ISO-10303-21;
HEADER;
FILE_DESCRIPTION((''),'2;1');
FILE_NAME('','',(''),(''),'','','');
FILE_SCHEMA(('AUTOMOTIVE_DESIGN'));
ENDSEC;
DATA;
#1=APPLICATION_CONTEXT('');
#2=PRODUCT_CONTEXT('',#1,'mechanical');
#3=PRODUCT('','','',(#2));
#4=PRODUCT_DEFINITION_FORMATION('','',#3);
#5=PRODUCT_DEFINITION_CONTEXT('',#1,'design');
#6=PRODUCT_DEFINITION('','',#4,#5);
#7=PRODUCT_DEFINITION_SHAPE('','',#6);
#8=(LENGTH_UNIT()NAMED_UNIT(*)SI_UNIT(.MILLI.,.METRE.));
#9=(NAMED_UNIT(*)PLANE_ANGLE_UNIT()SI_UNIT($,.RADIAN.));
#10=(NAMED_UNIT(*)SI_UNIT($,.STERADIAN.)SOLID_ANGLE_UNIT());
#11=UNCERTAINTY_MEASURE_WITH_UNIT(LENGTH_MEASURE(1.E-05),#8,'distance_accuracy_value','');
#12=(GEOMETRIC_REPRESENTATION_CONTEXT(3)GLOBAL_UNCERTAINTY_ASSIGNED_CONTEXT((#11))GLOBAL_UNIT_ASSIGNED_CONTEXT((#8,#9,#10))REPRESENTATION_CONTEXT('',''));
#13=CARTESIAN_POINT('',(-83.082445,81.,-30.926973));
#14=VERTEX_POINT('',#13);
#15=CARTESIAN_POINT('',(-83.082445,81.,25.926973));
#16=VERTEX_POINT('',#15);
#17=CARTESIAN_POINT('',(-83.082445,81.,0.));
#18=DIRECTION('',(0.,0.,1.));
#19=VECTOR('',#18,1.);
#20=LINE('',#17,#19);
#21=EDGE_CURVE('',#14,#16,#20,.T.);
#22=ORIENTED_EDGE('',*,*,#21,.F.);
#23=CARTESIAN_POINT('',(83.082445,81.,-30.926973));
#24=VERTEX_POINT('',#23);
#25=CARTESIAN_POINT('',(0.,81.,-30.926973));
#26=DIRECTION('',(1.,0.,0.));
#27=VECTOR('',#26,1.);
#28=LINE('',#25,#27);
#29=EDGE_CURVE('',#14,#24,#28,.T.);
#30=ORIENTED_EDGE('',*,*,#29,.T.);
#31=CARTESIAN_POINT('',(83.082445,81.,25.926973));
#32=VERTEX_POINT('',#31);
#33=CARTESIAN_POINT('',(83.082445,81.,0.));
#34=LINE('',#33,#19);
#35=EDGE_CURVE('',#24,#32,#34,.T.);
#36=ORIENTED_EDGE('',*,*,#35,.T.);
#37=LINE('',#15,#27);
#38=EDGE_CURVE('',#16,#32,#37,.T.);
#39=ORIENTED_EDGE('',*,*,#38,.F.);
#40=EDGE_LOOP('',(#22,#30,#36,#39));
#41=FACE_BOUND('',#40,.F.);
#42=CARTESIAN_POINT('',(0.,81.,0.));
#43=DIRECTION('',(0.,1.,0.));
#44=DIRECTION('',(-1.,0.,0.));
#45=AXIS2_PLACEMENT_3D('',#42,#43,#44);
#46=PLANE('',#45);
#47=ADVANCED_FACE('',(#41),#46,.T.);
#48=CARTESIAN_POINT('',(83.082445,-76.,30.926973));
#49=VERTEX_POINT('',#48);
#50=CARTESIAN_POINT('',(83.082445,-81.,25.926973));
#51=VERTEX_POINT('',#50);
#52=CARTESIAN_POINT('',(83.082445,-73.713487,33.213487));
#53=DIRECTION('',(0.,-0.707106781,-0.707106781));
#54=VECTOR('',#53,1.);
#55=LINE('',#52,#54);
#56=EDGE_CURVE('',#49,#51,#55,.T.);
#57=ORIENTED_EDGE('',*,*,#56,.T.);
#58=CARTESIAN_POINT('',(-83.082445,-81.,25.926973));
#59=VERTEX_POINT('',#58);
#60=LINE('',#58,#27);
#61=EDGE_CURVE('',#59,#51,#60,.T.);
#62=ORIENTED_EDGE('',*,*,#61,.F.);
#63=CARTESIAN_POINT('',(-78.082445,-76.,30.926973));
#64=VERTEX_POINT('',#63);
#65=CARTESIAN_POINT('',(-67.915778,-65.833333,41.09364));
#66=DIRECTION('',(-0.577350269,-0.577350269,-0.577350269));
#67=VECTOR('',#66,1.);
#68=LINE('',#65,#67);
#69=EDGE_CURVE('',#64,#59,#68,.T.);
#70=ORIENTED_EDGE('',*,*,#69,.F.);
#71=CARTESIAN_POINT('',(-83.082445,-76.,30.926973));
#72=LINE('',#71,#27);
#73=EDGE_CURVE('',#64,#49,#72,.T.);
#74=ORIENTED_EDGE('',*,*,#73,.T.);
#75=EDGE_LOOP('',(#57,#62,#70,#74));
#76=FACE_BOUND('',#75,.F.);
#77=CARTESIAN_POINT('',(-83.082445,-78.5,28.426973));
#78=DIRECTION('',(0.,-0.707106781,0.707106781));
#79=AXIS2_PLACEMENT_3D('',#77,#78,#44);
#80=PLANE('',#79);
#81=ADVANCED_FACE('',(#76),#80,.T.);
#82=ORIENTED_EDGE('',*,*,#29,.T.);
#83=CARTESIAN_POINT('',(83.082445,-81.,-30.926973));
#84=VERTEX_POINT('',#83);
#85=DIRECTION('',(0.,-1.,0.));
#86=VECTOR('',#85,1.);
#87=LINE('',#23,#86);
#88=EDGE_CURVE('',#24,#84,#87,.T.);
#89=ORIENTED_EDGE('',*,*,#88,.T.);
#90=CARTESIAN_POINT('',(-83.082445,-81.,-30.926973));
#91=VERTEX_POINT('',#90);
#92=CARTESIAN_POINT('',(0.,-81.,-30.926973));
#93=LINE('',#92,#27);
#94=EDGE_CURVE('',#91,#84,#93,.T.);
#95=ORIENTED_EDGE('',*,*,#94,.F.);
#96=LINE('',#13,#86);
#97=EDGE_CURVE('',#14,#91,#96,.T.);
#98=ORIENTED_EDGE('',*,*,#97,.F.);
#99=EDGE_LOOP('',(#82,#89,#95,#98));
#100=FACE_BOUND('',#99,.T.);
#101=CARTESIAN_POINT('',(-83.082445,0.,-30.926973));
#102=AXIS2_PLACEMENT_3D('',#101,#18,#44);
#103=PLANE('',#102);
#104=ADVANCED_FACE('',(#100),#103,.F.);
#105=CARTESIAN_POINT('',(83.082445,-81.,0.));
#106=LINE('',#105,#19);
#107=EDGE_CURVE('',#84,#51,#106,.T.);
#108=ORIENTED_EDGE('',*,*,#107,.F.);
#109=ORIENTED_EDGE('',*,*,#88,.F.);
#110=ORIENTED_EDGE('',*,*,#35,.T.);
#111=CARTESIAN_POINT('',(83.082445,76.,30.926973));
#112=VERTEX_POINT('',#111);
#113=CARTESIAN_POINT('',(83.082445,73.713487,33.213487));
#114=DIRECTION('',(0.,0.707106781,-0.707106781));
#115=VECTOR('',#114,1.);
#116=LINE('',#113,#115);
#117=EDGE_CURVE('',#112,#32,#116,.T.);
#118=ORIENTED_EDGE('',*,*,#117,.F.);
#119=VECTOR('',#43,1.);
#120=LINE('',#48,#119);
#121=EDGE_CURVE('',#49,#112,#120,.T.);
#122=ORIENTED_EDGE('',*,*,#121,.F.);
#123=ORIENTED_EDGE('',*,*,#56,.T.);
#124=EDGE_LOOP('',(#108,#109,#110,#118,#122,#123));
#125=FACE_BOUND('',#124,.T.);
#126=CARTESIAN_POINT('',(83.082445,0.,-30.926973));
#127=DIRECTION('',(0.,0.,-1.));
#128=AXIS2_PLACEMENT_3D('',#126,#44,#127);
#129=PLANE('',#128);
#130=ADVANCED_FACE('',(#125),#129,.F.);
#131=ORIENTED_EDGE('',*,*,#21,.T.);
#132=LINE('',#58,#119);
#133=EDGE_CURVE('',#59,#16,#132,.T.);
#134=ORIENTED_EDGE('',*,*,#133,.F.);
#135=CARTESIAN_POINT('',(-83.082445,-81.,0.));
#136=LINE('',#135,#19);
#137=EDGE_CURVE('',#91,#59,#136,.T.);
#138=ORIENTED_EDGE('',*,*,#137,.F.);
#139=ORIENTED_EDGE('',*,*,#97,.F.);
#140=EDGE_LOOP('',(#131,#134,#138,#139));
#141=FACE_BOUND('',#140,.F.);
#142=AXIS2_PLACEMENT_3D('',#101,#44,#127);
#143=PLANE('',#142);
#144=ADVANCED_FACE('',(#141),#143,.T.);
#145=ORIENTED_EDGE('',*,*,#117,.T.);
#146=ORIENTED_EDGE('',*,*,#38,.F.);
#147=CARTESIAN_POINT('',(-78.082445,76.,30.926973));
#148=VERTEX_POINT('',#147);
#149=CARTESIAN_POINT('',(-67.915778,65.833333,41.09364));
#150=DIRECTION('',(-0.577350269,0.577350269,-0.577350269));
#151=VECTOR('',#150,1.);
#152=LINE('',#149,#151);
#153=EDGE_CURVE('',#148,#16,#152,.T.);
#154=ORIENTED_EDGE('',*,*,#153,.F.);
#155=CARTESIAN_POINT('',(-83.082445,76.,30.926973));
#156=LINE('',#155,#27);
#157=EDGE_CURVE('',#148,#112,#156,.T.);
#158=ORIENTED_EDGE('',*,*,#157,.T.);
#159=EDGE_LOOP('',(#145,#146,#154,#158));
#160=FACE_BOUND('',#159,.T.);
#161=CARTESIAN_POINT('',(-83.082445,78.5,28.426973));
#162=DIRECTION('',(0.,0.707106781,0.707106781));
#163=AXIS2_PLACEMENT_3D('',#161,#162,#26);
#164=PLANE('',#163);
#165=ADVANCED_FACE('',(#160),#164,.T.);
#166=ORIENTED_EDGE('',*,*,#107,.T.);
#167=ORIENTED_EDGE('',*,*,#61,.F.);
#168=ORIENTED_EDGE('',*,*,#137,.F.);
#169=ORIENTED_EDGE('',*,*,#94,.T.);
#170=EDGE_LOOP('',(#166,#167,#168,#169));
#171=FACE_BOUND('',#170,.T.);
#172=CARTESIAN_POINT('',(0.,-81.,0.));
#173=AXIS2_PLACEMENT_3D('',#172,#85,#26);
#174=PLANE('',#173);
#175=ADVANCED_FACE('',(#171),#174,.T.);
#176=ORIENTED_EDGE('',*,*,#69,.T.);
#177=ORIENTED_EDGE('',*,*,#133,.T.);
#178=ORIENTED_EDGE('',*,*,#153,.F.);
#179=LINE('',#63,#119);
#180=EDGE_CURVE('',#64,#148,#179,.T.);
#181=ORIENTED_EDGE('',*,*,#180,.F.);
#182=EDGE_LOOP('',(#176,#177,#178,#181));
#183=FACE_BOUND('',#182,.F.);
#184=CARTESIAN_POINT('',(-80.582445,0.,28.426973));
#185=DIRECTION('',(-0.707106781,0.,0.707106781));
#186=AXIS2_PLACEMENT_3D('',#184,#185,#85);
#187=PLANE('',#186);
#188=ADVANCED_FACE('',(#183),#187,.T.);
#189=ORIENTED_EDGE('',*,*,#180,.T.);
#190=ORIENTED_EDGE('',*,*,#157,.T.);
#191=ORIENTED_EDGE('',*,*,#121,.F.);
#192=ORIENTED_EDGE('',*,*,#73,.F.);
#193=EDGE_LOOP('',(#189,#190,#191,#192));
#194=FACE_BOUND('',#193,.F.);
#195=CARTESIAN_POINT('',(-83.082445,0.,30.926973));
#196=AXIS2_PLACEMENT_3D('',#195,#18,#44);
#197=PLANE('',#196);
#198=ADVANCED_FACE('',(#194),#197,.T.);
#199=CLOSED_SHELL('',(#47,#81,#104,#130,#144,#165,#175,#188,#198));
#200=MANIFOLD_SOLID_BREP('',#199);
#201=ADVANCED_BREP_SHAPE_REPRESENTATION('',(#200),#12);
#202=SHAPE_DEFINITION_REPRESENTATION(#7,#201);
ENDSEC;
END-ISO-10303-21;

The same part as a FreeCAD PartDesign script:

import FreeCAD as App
import Part
import Sketcher


def edges_at(feature, points):
    """Names of the edges that pass closest to the given points."""
    edges = feature.Shape.Edges
    near = lambda p: min(range(len(edges)), key=lambda i: edges[i].distToShape(Part.Vertex(*p))[0])
    return sorted({f"Edge{near(p) + 1}" for p in points})


def add_polygon(sketch, points):
    """Adds a closed chain of lines whose ends are joined by coincident constraints."""
    first, n = sketch.GeometryCount, len(points)
    for a, b in zip(points, points[1:] + points[:1]):
        sketch.addGeometry(Part.LineSegment(App.Vector(*a, 0), App.Vector(*b, 0)), False)
    for i in range(n):
        sketch.addConstraint(Sketcher.Constraint("Coincident", first + i, 2, first + (i + 1) % n, 1))

doc = App.newDocument("Part")
params = doc.addObject("Spreadsheet::Sheet", "Params")
for row, (alias, value) in enumerate([
    ("pad1_length", "81 mm"),
    ("chamfer_size", "5 mm"),
], start=1):
    params.set(f"A{row}", alias)
    params.set(f"B{row}", "=" + value)
    params.setAlias(f"B{row}", alias)

body = doc.addObject("PartDesign::Body", "Body")

sketch1 = body.newObject("Sketcher::SketchObject", "Sketch")
sketch1.AttachmentSupport = (doc.getObject("XZ_Plane"), [""])
sketch1.MapMode = "FlatFace"
add_polygon(sketch1, [(-83, 31), (-83, -31), (83, -31), (83, 31)])
sketch1.addConstraint([
    Sketcher.Constraint("Vertical", 0),
    Sketcher.Constraint("Horizontal", 1),
    Sketcher.Constraint("Vertical", 2),
    Sketcher.Constraint("Horizontal", 3),
    Sketcher.Constraint("Symmetric", 0, 2, 2, 2, -1, 1),
    Sketcher.Constraint("DistanceX", 1, 1, 1, 2, 166.16489),
    Sketcher.Constraint("DistanceY", 0, 2, 0, 1, 61.853946),
])
pad1 = body.newObject("PartDesign::Pad", "Pad")
pad1.Profile = sketch1
pad1.setExpression("Length", "Params.pad1_length")
doc.recompute()

chamfer = body.newObject("PartDesign::Chamfer", "Chamfer")
chamfer.Base = (pad1, edges_at(pad1, [(0, -81, 30.927), (-83.082, -40.5, 30.927)]))
chamfer.setExpression("Size", "Params.chamfer_size")
body2 = doc.addObject("PartDesign::Body", "Body001")
doc.recompute()

body2.BaseFeature = body
doc.recompute()

mirroring = doc.addObject("Part::Mirroring", "Mirroring")
mirroring.Source = body
mirroring.Base = App.Vector(0.099138, 0, -0.03563)
mirroring.Normal = App.Vector(0, 1, 0)
body3 = doc.addObject("PartDesign::Body", "Body002")
body3.BaseFeature = mirroring
boolean = body2.newObject("PartDesign::Boolean", "Boolean")
boolean.Type = "Fuse"
boolean.addObjects([body3])
doc.recompute()
mirroring.Visibility = False

doc.recompute()
